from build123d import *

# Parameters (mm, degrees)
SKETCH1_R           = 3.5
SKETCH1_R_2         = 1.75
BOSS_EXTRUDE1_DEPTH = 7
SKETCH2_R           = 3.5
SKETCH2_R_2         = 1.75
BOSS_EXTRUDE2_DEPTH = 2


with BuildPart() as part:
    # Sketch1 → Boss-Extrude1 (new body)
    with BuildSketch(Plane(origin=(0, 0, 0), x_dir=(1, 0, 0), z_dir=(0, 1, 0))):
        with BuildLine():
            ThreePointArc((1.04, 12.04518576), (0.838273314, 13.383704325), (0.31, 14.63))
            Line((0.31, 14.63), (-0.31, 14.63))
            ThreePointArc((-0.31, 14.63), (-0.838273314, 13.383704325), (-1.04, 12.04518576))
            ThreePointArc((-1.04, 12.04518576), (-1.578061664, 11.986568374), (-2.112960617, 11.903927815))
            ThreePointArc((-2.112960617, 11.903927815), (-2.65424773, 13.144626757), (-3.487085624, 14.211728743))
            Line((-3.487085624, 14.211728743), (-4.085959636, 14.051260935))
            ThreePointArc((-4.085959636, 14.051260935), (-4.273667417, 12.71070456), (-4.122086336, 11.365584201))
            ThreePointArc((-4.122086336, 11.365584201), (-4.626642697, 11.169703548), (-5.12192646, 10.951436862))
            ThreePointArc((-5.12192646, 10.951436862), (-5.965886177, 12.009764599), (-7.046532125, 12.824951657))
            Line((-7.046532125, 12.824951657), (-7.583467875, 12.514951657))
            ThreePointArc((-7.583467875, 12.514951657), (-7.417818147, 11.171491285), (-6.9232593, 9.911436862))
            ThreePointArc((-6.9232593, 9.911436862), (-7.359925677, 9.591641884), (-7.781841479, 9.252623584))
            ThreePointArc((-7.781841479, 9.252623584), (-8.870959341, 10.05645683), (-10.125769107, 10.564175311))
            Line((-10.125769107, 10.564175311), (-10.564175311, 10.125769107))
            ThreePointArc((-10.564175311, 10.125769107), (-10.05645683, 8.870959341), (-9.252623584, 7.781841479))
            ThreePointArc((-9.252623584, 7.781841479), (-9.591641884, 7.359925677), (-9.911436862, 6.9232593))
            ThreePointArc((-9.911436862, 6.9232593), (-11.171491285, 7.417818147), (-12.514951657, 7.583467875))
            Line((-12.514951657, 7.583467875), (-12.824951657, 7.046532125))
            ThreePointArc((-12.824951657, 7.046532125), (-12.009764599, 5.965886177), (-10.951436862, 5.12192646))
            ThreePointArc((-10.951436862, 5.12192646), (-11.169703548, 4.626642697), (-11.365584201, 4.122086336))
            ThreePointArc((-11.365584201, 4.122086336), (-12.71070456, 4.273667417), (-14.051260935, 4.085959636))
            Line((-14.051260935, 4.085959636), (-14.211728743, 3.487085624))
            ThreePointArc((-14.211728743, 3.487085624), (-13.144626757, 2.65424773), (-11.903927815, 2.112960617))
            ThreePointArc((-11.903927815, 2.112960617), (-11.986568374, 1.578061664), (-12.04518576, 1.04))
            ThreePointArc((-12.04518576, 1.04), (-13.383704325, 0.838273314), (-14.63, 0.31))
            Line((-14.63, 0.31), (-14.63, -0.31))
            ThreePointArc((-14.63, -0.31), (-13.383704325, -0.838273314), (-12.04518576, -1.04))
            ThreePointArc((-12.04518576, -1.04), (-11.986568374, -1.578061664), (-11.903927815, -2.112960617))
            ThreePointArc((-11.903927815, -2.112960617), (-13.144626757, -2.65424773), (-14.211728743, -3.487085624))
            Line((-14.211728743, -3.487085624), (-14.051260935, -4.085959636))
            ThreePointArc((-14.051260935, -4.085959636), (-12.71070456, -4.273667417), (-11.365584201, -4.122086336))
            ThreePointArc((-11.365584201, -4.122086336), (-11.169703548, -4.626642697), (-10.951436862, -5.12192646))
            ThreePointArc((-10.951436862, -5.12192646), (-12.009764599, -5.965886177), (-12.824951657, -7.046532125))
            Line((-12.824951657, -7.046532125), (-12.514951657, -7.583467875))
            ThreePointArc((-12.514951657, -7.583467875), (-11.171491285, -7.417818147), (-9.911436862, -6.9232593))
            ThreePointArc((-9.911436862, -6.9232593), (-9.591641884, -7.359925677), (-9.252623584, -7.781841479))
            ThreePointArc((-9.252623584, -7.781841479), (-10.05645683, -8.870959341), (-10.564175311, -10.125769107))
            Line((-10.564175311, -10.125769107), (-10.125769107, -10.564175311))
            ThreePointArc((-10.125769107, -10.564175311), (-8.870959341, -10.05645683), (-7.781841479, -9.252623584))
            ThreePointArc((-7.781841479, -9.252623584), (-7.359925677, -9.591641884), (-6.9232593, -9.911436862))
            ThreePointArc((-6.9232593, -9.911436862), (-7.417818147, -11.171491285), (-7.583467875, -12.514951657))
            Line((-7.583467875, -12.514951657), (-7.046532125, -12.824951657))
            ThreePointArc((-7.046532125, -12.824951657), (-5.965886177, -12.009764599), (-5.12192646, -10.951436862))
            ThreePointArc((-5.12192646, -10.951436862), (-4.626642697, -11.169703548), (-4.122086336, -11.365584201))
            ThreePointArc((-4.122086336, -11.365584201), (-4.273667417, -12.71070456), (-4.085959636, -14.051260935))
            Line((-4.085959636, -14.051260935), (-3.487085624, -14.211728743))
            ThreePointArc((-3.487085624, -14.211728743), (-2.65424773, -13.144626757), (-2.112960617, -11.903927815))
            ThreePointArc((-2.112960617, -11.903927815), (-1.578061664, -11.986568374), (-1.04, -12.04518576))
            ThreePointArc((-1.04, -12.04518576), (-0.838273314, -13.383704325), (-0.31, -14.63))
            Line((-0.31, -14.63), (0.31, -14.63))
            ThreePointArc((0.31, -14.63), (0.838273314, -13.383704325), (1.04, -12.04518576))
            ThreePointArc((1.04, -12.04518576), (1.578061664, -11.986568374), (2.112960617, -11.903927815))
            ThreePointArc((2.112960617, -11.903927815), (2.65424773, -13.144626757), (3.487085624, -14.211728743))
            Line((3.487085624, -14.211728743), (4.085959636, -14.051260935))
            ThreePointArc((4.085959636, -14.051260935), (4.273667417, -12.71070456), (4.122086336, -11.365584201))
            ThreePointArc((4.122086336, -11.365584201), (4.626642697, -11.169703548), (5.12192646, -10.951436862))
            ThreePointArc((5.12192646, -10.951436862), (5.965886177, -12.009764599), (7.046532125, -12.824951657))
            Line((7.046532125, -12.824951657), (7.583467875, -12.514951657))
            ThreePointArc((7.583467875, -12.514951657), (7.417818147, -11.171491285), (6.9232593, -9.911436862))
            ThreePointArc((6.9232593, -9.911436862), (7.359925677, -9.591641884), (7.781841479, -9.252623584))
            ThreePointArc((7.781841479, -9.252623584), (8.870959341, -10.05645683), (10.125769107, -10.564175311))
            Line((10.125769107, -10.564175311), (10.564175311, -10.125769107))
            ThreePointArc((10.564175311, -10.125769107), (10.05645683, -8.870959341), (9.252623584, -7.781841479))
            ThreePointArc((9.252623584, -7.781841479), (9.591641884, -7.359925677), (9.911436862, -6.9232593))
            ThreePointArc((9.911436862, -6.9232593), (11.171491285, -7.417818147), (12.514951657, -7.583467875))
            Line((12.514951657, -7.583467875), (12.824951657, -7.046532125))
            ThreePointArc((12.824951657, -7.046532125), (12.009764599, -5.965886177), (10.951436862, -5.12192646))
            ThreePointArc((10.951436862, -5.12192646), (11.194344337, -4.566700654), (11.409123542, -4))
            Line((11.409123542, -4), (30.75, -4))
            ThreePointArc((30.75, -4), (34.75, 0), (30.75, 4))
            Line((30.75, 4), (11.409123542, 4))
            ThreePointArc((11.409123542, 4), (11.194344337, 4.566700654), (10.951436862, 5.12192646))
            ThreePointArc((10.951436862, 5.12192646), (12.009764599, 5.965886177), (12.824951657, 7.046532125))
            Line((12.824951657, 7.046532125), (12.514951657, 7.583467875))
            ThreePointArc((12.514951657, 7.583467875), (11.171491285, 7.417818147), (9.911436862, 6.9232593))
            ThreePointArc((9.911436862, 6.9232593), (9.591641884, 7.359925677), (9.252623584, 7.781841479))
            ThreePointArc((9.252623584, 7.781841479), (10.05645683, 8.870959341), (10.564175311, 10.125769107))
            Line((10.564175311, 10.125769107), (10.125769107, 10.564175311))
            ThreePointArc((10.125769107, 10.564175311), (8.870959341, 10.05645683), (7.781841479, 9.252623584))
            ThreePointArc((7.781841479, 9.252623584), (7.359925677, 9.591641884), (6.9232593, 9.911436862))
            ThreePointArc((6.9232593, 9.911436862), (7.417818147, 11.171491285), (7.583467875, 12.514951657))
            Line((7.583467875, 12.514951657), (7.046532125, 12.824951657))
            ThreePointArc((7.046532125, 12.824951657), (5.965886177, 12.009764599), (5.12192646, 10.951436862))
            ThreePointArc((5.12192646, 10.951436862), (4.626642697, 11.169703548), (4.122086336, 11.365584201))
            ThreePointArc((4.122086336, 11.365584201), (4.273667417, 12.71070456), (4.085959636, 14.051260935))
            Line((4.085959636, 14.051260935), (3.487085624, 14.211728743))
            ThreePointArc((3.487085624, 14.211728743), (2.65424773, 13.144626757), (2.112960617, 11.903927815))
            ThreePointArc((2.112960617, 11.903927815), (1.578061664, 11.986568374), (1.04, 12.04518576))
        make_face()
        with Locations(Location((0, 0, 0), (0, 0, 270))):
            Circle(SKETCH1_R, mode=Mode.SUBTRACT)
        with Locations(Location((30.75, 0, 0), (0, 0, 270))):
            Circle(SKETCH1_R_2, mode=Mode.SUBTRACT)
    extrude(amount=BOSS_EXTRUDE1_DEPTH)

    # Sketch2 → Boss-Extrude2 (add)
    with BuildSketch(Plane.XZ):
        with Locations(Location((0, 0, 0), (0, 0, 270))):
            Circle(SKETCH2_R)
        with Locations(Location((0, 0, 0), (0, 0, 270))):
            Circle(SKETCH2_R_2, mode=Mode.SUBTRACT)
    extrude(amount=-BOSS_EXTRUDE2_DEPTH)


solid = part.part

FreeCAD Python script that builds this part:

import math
import FreeCAD as App
import Part
import Sketcher
Q = App.Units.Quantity

doc = App.newDocument("Part")
body = doc.addObject("PartDesign::Body", "Body")

# Sketch on XZ plane
sketch1 = body.newObject("Sketcher::SketchObject", "Sketch")
sketch1.AttachmentSupport = (doc.getObject("XZ_Plane"), [""])
sketch1.MapMode = "FlatFace"
sketch1.addGeometry([
    Part.ArcOfCircle(Part.Circle(App.Vector(-4.358456, -11.916051, 0), App.Vector(0, 0, 1), 5.4), math.radians(-30.171052), math.radians(-1.370297)),  # 0
    Part.LineSegment(App.Vector(0.31, -14.63, 0), App.Vector(-0.31, -14.63, 0)),  # 1
    Part.ArcOfCircle(Part.Circle(App.Vector(4.358456, -11.916051, 0), App.Vector(0, 0, 1), 5.4), math.radians(-178.629703), math.radians(-149.828948)),  # 2
    Part.ArcOfCircle(Part.Circle(App.Vector(0, 0, 0), App.Vector(0, 0, 1), 12.09), math.radians(-100.065232), math.radians(-94.934768)),  # 3
    Part.ArcOfCircle(Part.Circle(App.Vector(-7.294046, -10.38197, 0), App.Vector(0, 0, 1), 5.4), math.radians(-45.171052), math.radians(-16.370297)),  # 4
    Part.LineSegment(App.Vector(-3.487086, -14.211729, 0), App.Vector(-4.08596, -14.051261, 0)),  # 5
    Part.ArcOfCircle(Part.Circle(App.Vector(1.125844, -12.638072, 0), App.Vector(0, 0, 1), 5.4), math.radians(166.370297), math.radians(195.171052)),  # 6
    Part.ArcOfCircle(Part.Circle(App.Vector(0, 0, 0), App.Vector(0, 0, 1), 12.09), math.radians(-115.065232), math.radians(-109.934768)),  # 7
    Part.ArcOfCircle(Part.Circle(App.Vector(-9.732559, -8.140375, 0), App.Vector(0, 0, 1), 5.4), math.radians(-60.171052), math.radians(-31.370297)),  # 8
    Part.LineSegment(App.Vector(-7.046532, -12.824952, 0), App.Vector(-7.583468, -12.514952, 0)),  # 9
    Part.ArcOfCircle(Part.Circle(App.Vector(-2.183492, -12.49883, 0), App.Vector(0, 0, 1), 5.4), math.radians(151.370297), math.radians(180.171052)),  # 10
    Part.ArcOfCircle(Part.Circle(App.Vector(0, 0, 0), App.Vector(0, 0, 1), 12.09), math.radians(-130.065232), math.radians(-124.934768)),  # 11
    Part.ArcOfCircle(Part.Circle(App.Vector(-11.507814, -5.344027, 0), App.Vector(0, 0, 1), 5.4), math.radians(-75.171052), math.radians(-46.370297)),  # 12
    Part.LineSegment(App.Vector(-10.125769, -10.564175, 0), App.Vector(-10.564175, -10.125769, 0)),  # 13
    Part.ArcOfCircle(Part.Circle(App.Vector(-5.344027, -11.507814, 0), App.Vector(0, 0, 1), 5.4), math.radians(136.370297), math.radians(165.171052)),  # 14
    Part.ArcOfCircle(Part.Circle(App.Vector(0, 0, 0), App.Vector(0, 0, 1), 12.09), math.radians(-145.065232), math.radians(-139.934768)),  # 15
    Part.ArcOfCircle(Part.Circle(App.Vector(-12.49883, -2.183492, 0), App.Vector(0, 0, 1), 5.4), math.radians(-90.171052), math.radians(-61.370297)),  # 16
    Part.LineSegment(App.Vector(-12.514952, -7.583468, 0), App.Vector(-12.824952, -7.046532, 0)),  # 17
    Part.ArcOfCircle(Part.Circle(App.Vector(-8.140375, -9.732559, 0), App.Vector(0, 0, 1), 5.4), math.radians(121.370297), math.radians(150.171052)),  # 18
    Part.ArcOfCircle(Part.Circle(App.Vector(0, 0, 0), App.Vector(0, 0, 1), 12.09), math.radians(-160.065232), math.radians(-154.934768)),  # 19
    Part.ArcOfCircle(Part.Circle(App.Vector(-12.638072, 1.125844, 0), App.Vector(0, 0, 1), 5.4), math.radians(-105.171052), math.radians(-76.370297)),  # 20
    Part.LineSegment(App.Vector(-14.051261, -4.08596, 0), App.Vector(-14.211729, -3.487086, 0)),  # 21
    Part.ArcOfCircle(Part.Circle(App.Vector(-10.38197, -7.294046, 0), App.Vector(0, 0, 1), 5.4), math.radians(106.370297), math.radians(135.171052)),  # 22
    Part.ArcOfCircle(Part.Circle(App.Vector(0, 0, 0), App.Vector(0, 0, 1), 12.09), math.radians(-175.065232), math.radians(-169.934768)),  # 23
    Part.ArcOfCircle(Part.Circle(App.Vector(-11.916051, 4.358456, 0), App.Vector(0, 0, 1), 5.4), math.radians(-120.171052), math.radians(-91.370297)),  # 24
    Part.LineSegment(App.Vector(-14.63, -0.31, 0), App.Vector(-14.63, 0.31, 0)),  # 25
    Part.ArcOfCircle(Part.Circle(App.Vector(-11.916051, -4.358456, 0), App.Vector(0, 0, 1), 5.4), math.radians(91.370297), math.radians(120.171052)),  # 26
    Part.ArcOfCircle(Part.Circle(App.Vector(0, 0, 0), App.Vector(0, 0, 1), 12.09), math.radians(169.934768), math.radians(175.065232)),  # 27
    Part.ArcOfCircle(Part.Circle(App.Vector(-10.38197, 7.294046, 0), App.Vector(0, 0, 1), 5.4), math.radians(-135.171052), math.radians(-106.370297)),  # 28
    Part.LineSegment(App.Vector(-14.211729, 3.487086, 0), App.Vector(-14.051261, 4.08596, 0)),  # 29
    Part.ArcOfCircle(Part.Circle(App.Vector(-12.638072, -1.125844, 0), App.Vector(0, 0, 1), 5.4), math.radians(76.370297), math.radians(105.171052)),  # 30
    Part.ArcOfCircle(Part.Circle(App.Vector(0, 0, 0), App.Vector(0, 0, 1), 12.09), math.radians(154.934768), math.radians(160.065232)),  # 31
    Part.ArcOfCircle(Part.Circle(App.Vector(-8.140375, 9.732559, 0), App.Vector(0, 0, 1), 5.4), math.radians(-150.171052), math.radians(-121.370297)),  # 32
    Part.LineSegment(App.Vector(-12.824952, 7.046532, 0), App.Vector(-12.514952, 7.583468, 0)),  # 33
    Part.ArcOfCircle(Part.Circle(App.Vector(-12.49883, 2.183492, 0), App.Vector(0, 0, 1), 5.4), math.radians(61.370297), math.radians(90.171052)),  # 34
    Part.ArcOfCircle(Part.Circle(App.Vector(0, 0, 0), App.Vector(0, 0, 1), 12.09), math.radians(139.934768), math.radians(145.065232)),  # 35
    Part.ArcOfCircle(Part.Circle(App.Vector(-5.344027, 11.507814, 0), App.Vector(0, 0, 1), 5.4), math.radians(-165.171052), math.radians(-136.370297)),  # 36
    Part.LineSegment(App.Vector(-10.564175, 10.125769, 0), App.Vector(-10.125769, 10.564175, 0)),  # 37
    Part.ArcOfCircle(Part.Circle(App.Vector(-11.507814, 5.344027, 0), App.Vector(0, 0, 1), 5.4), math.radians(46.370297), math.radians(75.171052)),  # 38
    Part.ArcOfCircle(Part.Circle(App.Vector(0, 0, 0), App.Vector(0, 0, 1), 12.09), math.radians(124.934768), math.radians(130.065232)),  # 39
    Part.ArcOfCircle(Part.Circle(App.Vector(-2.183492, 12.49883, 0), App.Vector(0, 0, 1), 5.4), math.radians(179.828948), math.radians(208.629703)),  # 40
    Part.LineSegment(App.Vector(-7.583468, 12.514952, 0), App.Vector(-7.046532, 12.824952, 0)),  # 41
    Part.ArcOfCircle(Part.Circle(App.Vector(-9.732559, 8.140375, 0), App.Vector(0, 0, 1), 5.4), math.radians(31.370297), math.radians(60.171052)),  # 42
    Part.ArcOfCircle(Part.Circle(App.Vector(0, 0, 0), App.Vector(0, 0, 1), 12.09), math.radians(109.934768), math.radians(115.065232)),  # 43
    Part.ArcOfCircle(Part.Circle(App.Vector(1.125844, 12.638072, 0), App.Vector(0, 0, 1), 5.4), math.radians(164.828948), math.radians(193.629703)),  # 44
    Part.LineSegment(App.Vector(-4.08596, 14.051261, 0), App.Vector(-3.487086, 14.211729, 0)),  # 45
    Part.ArcOfCircle(Part.Circle(App.Vector(-7.294046, 10.38197, 0), App.Vector(0, 0, 1), 5.4), math.radians(16.370297), math.radians(45.171052)),  # 46
    Part.ArcOfCircle(Part.Circle(App.Vector(0, 0, 0), App.Vector(0, 0, 1), 12.09), math.radians(94.934768), math.radians(100.065232)),  # 47
    Part.ArcOfCircle(Part.Circle(App.Vector(4.358456, 11.916051, 0), App.Vector(0, 0, 1), 5.4), math.radians(149.828948), math.radians(178.629703)),  # 48
    Part.LineSegment(App.Vector(-0.31, 14.63, 0), App.Vector(0.31, 14.63, 0)),  # 49
    Part.ArcOfCircle(Part.Circle(App.Vector(-4.358456, 11.916051, 0), App.Vector(0, 0, 1), 5.4), math.radians(1.370297), math.radians(30.171052)),  # 50
    Part.ArcOfCircle(Part.Circle(App.Vector(0, 0, 0), App.Vector(0, 0, 1), 12.09), math.radians(79.934768), math.radians(85.065232)),  # 51
    Part.ArcOfCircle(Part.Circle(App.Vector(7.294046, 10.38197, 0), App.Vector(0, 0, 1), 5.4), math.radians(134.828948), math.radians(163.629703)),  # 52
    Part.LineSegment(App.Vector(3.487086, 14.211729, 0), App.Vector(4.08596, 14.051261, 0)),  # 53
    Part.ArcOfCircle(Part.Circle(App.Vector(-1.125844, 12.638072, 0), App.Vector(0, 0, 1), 5.4), math.radians(-13.629703), math.radians(15.171052)),  # 54
    Part.ArcOfCircle(Part.Circle(App.Vector(0, 0, 0), App.Vector(0, 0, 1), 12.09), math.radians(64.934768), math.radians(70.065232)),  # 55
    Part.ArcOfCircle(Part.Circle(App.Vector(9.732559, 8.140375, 0), App.Vector(0, 0, 1), 5.4), math.radians(119.828948), math.radians(148.629703)),  # 56
    Part.LineSegment(App.Vector(7.046532, 12.824952, 0), App.Vector(7.583468, 12.514952, 0)),  # 57
    Part.ArcOfCircle(Part.Circle(App.Vector(2.183492, 12.49883, 0), App.Vector(0, 0, 1), 5.4), math.radians(-28.629703), math.radians(0.171052)),  # 58
    Part.ArcOfCircle(Part.Circle(App.Vector(0, 0, 0), App.Vector(0, 0, 1), 12.09), math.radians(49.934768), math.radians(55.065232)),  # 59
    Part.ArcOfCircle(Part.Circle(App.Vector(11.507814, 5.344027, 0), App.Vector(0, 0, 1), 5.4), math.radians(104.828948), math.radians(133.629703)),  # 60
    Part.LineSegment(App.Vector(10.125769, 10.564175, 0), App.Vector(10.564175, 10.125769, 0)),  # 61
    Part.ArcOfCircle(Part.Circle(App.Vector(5.344027, 11.507814, 0), App.Vector(0, 0, 1), 5.4), math.radians(-43.629703), math.radians(-14.828948)),  # 62
    Part.ArcOfCircle(Part.Circle(App.Vector(0, 0, 0), App.Vector(0, 0, 1), 12.09), math.radians(34.934768), math.radians(40.065232)),  # 63
    Part.ArcOfCircle(Part.Circle(App.Vector(12.49883, 2.183492, 0), App.Vector(0, 0, 1), 5.4), math.radians(89.828948), math.radians(118.629703)),  # 64
    Part.LineSegment(App.Vector(12.514952, 7.583468, 0), App.Vector(12.824952, 7.046532, 0)),  # 65
    Part.ArcOfCircle(Part.Circle(App.Vector(8.140375, 9.732559, 0), App.Vector(0, 0, 1), 5.4), math.radians(-58.629703), math.radians(-29.828948)),  # 66
    Part.ArcOfCircle(Part.Circle(App.Vector(0, 0, 0), App.Vector(0, 0, 1), 12.09), math.radians(19.320493), math.radians(25.065232)),  # 67
    Part.LineSegment(App.Vector(11.409124, 4, 0), App.Vector(30.75, 4, 0)),  # 68
    Part.ArcOfCircle(Part.Circle(App.Vector(30.75, 0, 0), App.Vector(0, 0, 1), 4), math.radians(-90), math.radians(90)),  # 69
    Part.LineSegment(App.Vector(30.75, -4, 0), App.Vector(11.409124, -4, 0)),  # 70
    Part.ArcOfCircle(Part.Circle(App.Vector(0, 0, 0), App.Vector(0, 0, 1), 12.09), math.radians(-25.065232), math.radians(-19.320493)),  # 71
    Part.ArcOfCircle(Part.Circle(App.Vector(8.140375, -9.732559, 0), App.Vector(0, 0, 1), 5.4), math.radians(29.828948), math.radians(58.629703)),  # 72
    Part.LineSegment(App.Vector(12.824952, -7.046532, 0), App.Vector(12.514952, -7.583468, 0)),  # 73
    Part.ArcOfCircle(Part.Circle(App.Vector(12.49883, -2.183492, 0), App.Vector(0, 0, 1), 5.4), math.radians(-118.629703), math.radians(-89.828948)),  # 74
    Part.ArcOfCircle(Part.Circle(App.Vector(0, 0, 0), App.Vector(0, 0, 1), 12.09), math.radians(-40.065232), math.radians(-34.934768)),  # 75
    Part.ArcOfCircle(Part.Circle(App.Vector(5.344027, -11.507814, 0), App.Vector(0, 0, 1), 5.4), math.radians(14.828948), math.radians(43.629703)),  # 76
    Part.LineSegment(App.Vector(10.564175, -10.125769, 0), App.Vector(10.125769, -10.564175, 0)),  # 77
    Part.ArcOfCircle(Part.Circle(App.Vector(11.507814, -5.344027, 0), App.Vector(0, 0, 1), 5.4), math.radians(-133.629703), math.radians(-104.828948)),  # 78
    Part.ArcOfCircle(Part.Circle(App.Vector(0, 0, 0), App.Vector(0, 0, 1), 12.09), math.radians(-55.065232), math.radians(-49.934768)),  # 79
    Part.ArcOfCircle(Part.Circle(App.Vector(2.183492, -12.49883, 0), App.Vector(0, 0, 1), 5.4), math.radians(-0.171052), math.radians(28.629703)),  # 80
    Part.LineSegment(App.Vector(7.583468, -12.514952, 0), App.Vector(7.046532, -12.824952, 0)),  # 81
    Part.ArcOfCircle(Part.Circle(App.Vector(9.732559, -8.140375, 0), App.Vector(0, 0, 1), 5.4), math.radians(-148.629703), math.radians(-119.828948)),  # 82
    Part.ArcOfCircle(Part.Circle(App.Vector(0, 0, 0), App.Vector(0, 0, 1), 12.09), math.radians(-70.065232), math.radians(-64.934768)),  # 83
    Part.ArcOfCircle(Part.Circle(App.Vector(-1.125844, -12.638072, 0), App.Vector(0, 0, 1), 5.4), math.radians(-15.171052), math.radians(13.629703)),  # 84
    Part.LineSegment(App.Vector(4.08596, -14.051261, 0), App.Vector(3.487086, -14.211729, 0)),  # 85
    Part.ArcOfCircle(Part.Circle(App.Vector(7.294046, -10.38197, 0), App.Vector(0, 0, 1), 5.4), math.radians(-163.629703), math.radians(-134.828948)),  # 86
    Part.ArcOfCircle(Part.Circle(App.Vector(0, 0, 0), App.Vector(0, 0, 1), 12.09), math.radians(-85.065232), math.radians(-79.934768)),  # 87
    Part.Circle(App.Vector(0, 0, 0), App.Vector(0, 0, 1), 3.5),  # 88
    Part.Circle(App.Vector(30.75, 0, 0), App.Vector(0, 0, 1), 1.75),  # 89
], False)
sketch1.addConstraint([
    Sketcher.Constraint("Coincident", 0, 1, 1, 1),
    Sketcher.Constraint("Coincident", 1, 2, 2, 2),
    Sketcher.Constraint("Coincident", 2, 1, 3, 2),
    Sketcher.Constraint("Coincident", 3, 1, 4, 2),
    Sketcher.Constraint("Coincident", 4, 1, 5, 1),
    Sketcher.Constraint("Coincident", 5, 2, 6, 2),
    Sketcher.Constraint("Coincident", 6, 1, 7, 2),
    Sketcher.Constraint("Coincident", 7, 1, 8, 2),
    Sketcher.Constraint("Coincident", 8, 1, 9, 1),
    Sketcher.Constraint("Coincident", 9, 2, 10, 2),
    Sketcher.Constraint("Coincident", 10, 1, 11, 2),
    Sketcher.Constraint("Coincident", 11, 1, 12, 2),
    Sketcher.Constraint("Coincident", 12, 1, 13, 1),
    Sketcher.Constraint("Coincident", 13, 2, 14, 2),
    Sketcher.Constraint("Coincident", 14, 1, 15, 2),
    Sketcher.Constraint("Coincident", 15, 1, 16, 2),
    Sketcher.Constraint("Coincident", 16, 1, 17, 1),
    Sketcher.Constraint("Coincident", 17, 2, 18, 2),
    Sketcher.Constraint("Coincident", 18, 1, 19, 2),
    Sketcher.Constraint("Coincident", 19, 1, 20, 2),
    Sketcher.Constraint("Coincident", 20, 1, 21, 1),
    Sketcher.Constraint("Coincident", 21, 2, 22, 2),
    Sketcher.Constraint("Coincident", 22, 1, 23, 2),
    Sketcher.Constraint("Coincident", 23, 1, 24, 2),
    Sketcher.Constraint("Coincident", 24, 1, 25, 1),
    Sketcher.Constraint("Coincident", 25, 2, 26, 2),
    Sketcher.Constraint("Coincident", 26, 1, 27, 2),
    Sketcher.Constraint("Coincident", 27, 1, 28, 2),
    Sketcher.Constraint("Coincident", 28, 1, 29, 1),
    Sketcher.Constraint("Coincident", 29, 2, 30, 2),
    Sketcher.Constraint("Coincident", 30, 1, 31, 2),
    Sketcher.Constraint("Coincident", 31, 1, 32, 2),
    Sketcher.Constraint("Coincident", 32, 1, 33, 1),
    Sketcher.Constraint("Coincident", 33, 2, 34, 2),
    Sketcher.Constraint("Coincident", 34, 1, 35, 2),
    Sketcher.Constraint("Coincident", 35, 1, 36, 2),
    Sketcher.Constraint("Coincident", 36, 1, 37, 1),
    Sketcher.Constraint("Coincident", 37, 2, 38, 2),
    Sketcher.Constraint("Coincident", 38, 1, 39, 2),
    Sketcher.Constraint("Coincident", 39, 1, 40, 2),
    Sketcher.Constraint("Coincident", 40, 1, 41, 1),
    Sketcher.Constraint("Coincident", 41, 2, 42, 2),
    Sketcher.Constraint("Coincident", 42, 1, 43, 2),
    Sketcher.Constraint("Coincident", 43, 1, 44, 2),
    Sketcher.Constraint("Coincident", 44, 1, 45, 1),
    Sketcher.Constraint("Coincident", 45, 2, 46, 2),
    Sketcher.Constraint("Coincident", 46, 1, 47, 2),
    Sketcher.Constraint("Coincident", 47, 1, 48, 2),
    Sketcher.Constraint("Coincident", 48, 1, 49, 1),
    Sketcher.Constraint("Coincident", 49, 2, 50, 2),
    Sketcher.Constraint("Coincident", 50, 1, 51, 2),
    Sketcher.Constraint("Coincident", 51, 1, 52, 2),
    Sketcher.Constraint("Coincident", 52, 1, 53, 1),
    Sketcher.Constraint("Coincident", 53, 2, 54, 2),
    Sketcher.Constraint("Coincident", 54, 1, 55, 2),
    Sketcher.Constraint("Coincident", 55, 1, 56, 2),
    Sketcher.Constraint("Coincident", 56, 1, 57, 1),
    Sketcher.Constraint("Coincident", 57, 2, 58, 2),
    Sketcher.Constraint("Coincident", 58, 1, 59, 2),
    Sketcher.Constraint("Coincident", 59, 1, 60, 2),
    Sketcher.Constraint("Coincident", 60, 1, 61, 1),
    Sketcher.Constraint("Coincident", 61, 2, 62, 2),
    Sketcher.Constraint("Coincident", 62, 1, 63, 2),
    Sketcher.Constraint("Coincident", 63, 1, 64, 2),
    Sketcher.Constraint("Coincident", 64, 1, 65, 1),
    Sketcher.Constraint("Coincident", 65, 2, 66, 2),
    Sketcher.Constraint("Coincident", 66, 1, 67, 2),
    Sketcher.Constraint("Coincident", 67, 1, 68, 1),
    Sketcher.Constraint("Tangent", 68, 2, 69, 2),
    Sketcher.Constraint("Tangent", 69, 1, 70, 1),
    Sketcher.Constraint("Coincident", 70, 2, 71, 2),
    Sketcher.Constraint("Coincident", 71, 1, 72, 2),
    Sketcher.Constraint("Coincident", 72, 1, 73, 1),
    Sketcher.Constraint("Coincident", 73, 2, 74, 2),
    Sketcher.Constraint("Coincident", 74, 1, 75, 2),
    Sketcher.Constraint("Coincident", 75, 1, 76, 2),
    Sketcher.Constraint("Coincident", 76, 1, 77, 1),
    Sketcher.Constraint("Coincident", 77, 2, 78, 2),
    Sketcher.Constraint("Coincident", 78, 1, 79, 2),
    Sketcher.Constraint("Coincident", 79, 1, 80, 2),
    Sketcher.Constraint("Coincident", 80, 1, 81, 1),
    Sketcher.Constraint("Coincident", 81, 2, 82, 2),
    Sketcher.Constraint("Coincident", 82, 1, 83, 2),
    Sketcher.Constraint("Coincident", 83, 1, 84, 2),
    Sketcher.Constraint("Coincident", 84, 1, 85, 1),
    Sketcher.Constraint("Coincident", 85, 2, 86, 2),
    Sketcher.Constraint("Coincident", 86, 1, 87, 2),
    Sketcher.Constraint("Coincident", 87, 1, 0, 2),
    Sketcher.Constraint("Horizontal", 1),
    Sketcher.Constraint("Vertical", 25),
    Sketcher.Constraint("Horizontal", 49),
    Sketcher.Constraint("Horizontal", 68),
    Sketcher.Constraint("Horizontal", 70),
    Sketcher.Constraint("Coincident", 3, 3, -1, 1),
    Sketcher.Constraint("Coincident", 7, 3, -1, 1),
    Sketcher.Constraint("Coincident", 11, 3, -1, 1),
    Sketcher.Constraint("Coincident", 15, 3, -1, 1),
    Sketcher.Constraint("Coincident", 19, 3, -1, 1),
    Sketcher.Constraint("Coincident", 23, 3, -1, 1),
    Sketcher.Constraint("Coincident", 27, 3, -1, 1),
    Sketcher.Constraint("Coincident", 31, 3, -1, 1),
    Sketcher.Constraint("Coincident", 35, 3, -1, 1),
    Sketcher.Constraint("Coincident", 39, 3, -1, 1),
    Sketcher.Constraint("Coincident", 43, 3, -1, 1),
    Sketcher.Constraint("Coincident", 47, 3, -1, 1),
    Sketcher.Constraint("Coincident", 51, 3, -1, 1),
    Sketcher.Constraint("Coincident", 55, 3, -1, 1),
    Sketcher.Constraint("Coincident", 59, 3, -1, 1),
    Sketcher.Constraint("Coincident", 63, 3, -1, 1),
    Sketcher.Constraint("Coincident", 67, 3, -1, 1),
    Sketcher.Constraint("Coincident", 71, 3, -1, 1),
    Sketcher.Constraint("Coincident", 75, 3, -1, 1),
    Sketcher.Constraint("Coincident", 79, 3, -1, 1),
    Sketcher.Constraint("Coincident", 83, 3, -1, 1),
    Sketcher.Constraint("Coincident", 87, 3, -1, 1),
    Sketcher.Constraint("Coincident", 88, 3, -1, 1),
    Sketcher.Constraint("Coincident", 89, 3, 69, 3),
    Sketcher.Constraint("Equal", 0, 2),
    Sketcher.Constraint("Equal", 2, 4),
    Sketcher.Constraint("Equal", 4, 6),
    Sketcher.Constraint("Equal", 3, 7),
    Sketcher.Constraint("Equal", 6, 8),
    Sketcher.Constraint("Equal", 8, 10),
    Sketcher.Constraint("Equal", 7, 11),
    Sketcher.Constraint("Equal", 10, 12),
    Sketcher.Constraint("Equal", 12, 14),
    Sketcher.Constraint("Equal", 11, 15),
    Sketcher.Constraint("Equal", 14, 16),
    Sketcher.Constraint("Equal", 16, 18),
    Sketcher.Constraint("Equal", 15, 19),
    Sketcher.Constraint("Equal", 18, 20),
    Sketcher.Constraint("Equal", 20, 22),
    Sketcher.Constraint("Equal", 19, 23),
    Sketcher.Constraint("Equal", 22, 24),
    Sketcher.Constraint("Equal", 24, 26),
    Sketcher.Constraint("Equal", 23, 27),
    Sketcher.Constraint("Equal", 26, 28),
    Sketcher.Constraint("Equal", 28, 30),
    Sketcher.Constraint("Equal", 27, 31),
    Sketcher.Constraint("Equal", 30, 32),
    Sketcher.Constraint("Equal", 32, 34),
    Sketcher.Constraint("Equal", 31, 35),
    Sketcher.Constraint("Equal", 34, 36),
    Sketcher.Constraint("Equal", 36, 38),
    Sketcher.Constraint("Equal", 35, 39),
    Sketcher.Constraint("Equal", 38, 40),
    Sketcher.Constraint("Equal", 40, 42),
    Sketcher.Constraint("Equal", 39, 43),
    Sketcher.Constraint("Equal", 42, 44),
    Sketcher.Constraint("Equal", 44, 46),
    Sketcher.Constraint("Equal", 43, 47),
    Sketcher.Constraint("Equal", 46, 48),
    Sketcher.Constraint("Equal", 48, 50),
    Sketcher.Constraint("Equal", 47, 51),
    Sketcher.Constraint("Equal", 50, 52),
    Sketcher.Constraint("Equal", 52, 54),
    Sketcher.Constraint("Equal", 51, 55),
    Sketcher.Constraint("Equal", 54, 56),
    Sketcher.Constraint("Equal", 56, 58),
    Sketcher.Constraint("Equal", 55, 59),
    Sketcher.Constraint("Equal", 58, 60),
    Sketcher.Constraint("Equal", 60, 62),
    Sketcher.Constraint("Equal", 59, 63),
    Sketcher.Constraint("Equal", 62, 64),
    Sketcher.Constraint("Equal", 64, 66),
    Sketcher.Constraint("Equal", 63, 67),
    Sketcher.Constraint("Equal", 67, 71),
    Sketcher.Constraint("Equal", 66, 72),
    Sketcher.Constraint("Equal", 72, 74),
    Sketcher.Constraint("Equal", 71, 75),
    Sketcher.Constraint("Equal", 74, 76),
    Sketcher.Constraint("Equal", 76, 78),
    Sketcher.Constraint("Equal", 75, 79),
    Sketcher.Constraint("Equal", 78, 80),
    Sketcher.Constraint("Equal", 80, 82),
    Sketcher.Constraint("Equal", 79, 83),
    Sketcher.Constraint("Equal", 82, 84),
    Sketcher.Constraint("Equal", 84, 86),
    Sketcher.Constraint("Equal", 83, 87),
    Sketcher.Constraint("Symmetric", 0, 3, 48, 3, -1, 1),
    Sketcher.Constraint("Symmetric", 2, 3, 50, 3, -1, 1),
    Sketcher.Constraint("Symmetric", 4, 3, 52, 3, -1, 1),
    Sketcher.Constraint("Symmetric", 6, 3, 54, 3, -1, 1),
    Sketcher.Constraint("Symmetric", 8, 3, 56, 3, -1, 1),
    Sketcher.Constraint("Symmetric", 10, 3, 58, 3, -1, 1),
    Sketcher.Constraint("Symmetric", 12, 3, 60, 3, -1, 1),
    Sketcher.Constraint("Symmetric", 14, 3, 62, 3, -1, 1),
    Sketcher.Constraint("Symmetric", 16, 3, 64, 3, -1, 1),
    Sketcher.Constraint("Symmetric", 18, 3, 66, 3, -1, 1),
    Sketcher.Constraint("Symmetric", 32, 3, 72, 3, -1, 1),
    Sketcher.Constraint("Symmetric", 34, 3, 74, 3, -1, 1),
    Sketcher.Constraint("Symmetric", 36, 3, 76, 3, -1, 1),
    Sketcher.Constraint("Symmetric", 38, 3, 78, 3, -1, 1),
    Sketcher.Constraint("Symmetric", 40, 3, 80, 3, -1, 1),
    Sketcher.Constraint("Symmetric", 42, 3, 82, 3, -1, 1),
    Sketcher.Constraint("Symmetric", 44, 3, 84, 3, -1, 1),
    Sketcher.Constraint("Symmetric", 46, 3, 86, 3, -1, 1),
    Sketcher.Constraint("Symmetric", 0, 3, 2, 3, -2),
    Sketcher.Constraint("Symmetric", 46, 3, 52, 3, -2),
    Sketcher.Constraint("Symmetric", 44, 3, 54, 3, -2),
    Sketcher.Constraint("Symmetric", 42, 3, 56, 3, -2),
    Sketcher.Constraint("Symmetric", 40, 3, 58, 3, -2),
    Sketcher.Constraint("Symmetric", 38, 3, 60, 3, -2),
    Sketcher.Constraint("Symmetric", 36, 3, 62, 3, -2),
    Sketcher.Constraint("Symmetric", 34, 3, 64, 3, -2),
    Sketcher.Constraint("Symmetric", 32, 3, 66, 3, -2),
    Sketcher.Constraint("Symmetric", 24, 3, 26, 3, -1),
    Sketcher.Constraint("Symmetric", 22, 3, 28, 3, -1),
    Sketcher.Constraint("Symmetric", 20, 3, 30, 3, -1),
    Sketcher.Constraint("PointOnObject", 69, 3, -1),
    Sketcher.Constraint("Perpendicular", 5, 29),
    Sketcher.Constraint("Perpendicular", 9, 33),
    Sketcher.Constraint("Perpendicular", 13, 37),
    Sketcher.Constraint("Perpendicular", 17, 41),
    Sketcher.Constraint("Perpendicular", 21, 45),
    Sketcher.Constraint("Perpendicular", 29, 53),
    Sketcher.Constraint("Perpendicular", 33, 57),
    Sketcher.Constraint("Perpendicular", 37, 61),
    Sketcher.Constraint("Perpendicular", 41, 65),
    Sketcher.Constraint("Perpendicular", 57, 73),
    Sketcher.Constraint("Perpendicular", 61, 77),
    Sketcher.Constraint("Perpendicular", 65, 81),
    Sketcher.Constraint("Parallel", 45, 85),
    Sketcher.Constraint("Horizontal", 45, 2, 52, 1),
    Sketcher.Constraint("Horizontal", 44, 1, 53, 2),
    Sketcher.Constraint("Horizontal", 41, 2, 56, 1),
    Sketcher.Constraint("Horizontal", 40, 1, 57, 2),
    Sketcher.Constraint("Horizontal", 37, 2, 60, 1),
    Sketcher.Constraint("Horizontal", 36, 1, 61, 2),
    Sketcher.Constraint("Horizontal", 32, 1, 65, 2),
    Sketcher.Constraint("Horizontal", 17, 2, 72, 1),
    Sketcher.Constraint("Horizontal", 13, 2, 76, 1),
    Sketcher.Constraint("Horizontal", 9, 2, 80, 1),
    Sketcher.Constraint("Horizontal", 5, 2, 84, 1),
    Sketcher.Constraint("Vertical", 21, 2, 28, 1),
    Sketcher.Constraint("Vertical", 17, 2, 32, 1),
    Sketcher.Constraint("Vertical", 13, 2, 36, 1),
    Sketcher.Constraint("Vertical", 8, 1, 41, 2),
    Sketcher.Constraint("Vertical", 5, 2, 44, 1),
    Sketcher.Constraint("Vertical", 1, 2, 48, 1),
    Sketcher.Constraint("Equal", 49, 25),
    Sketcher.Constraint("Equal", 5, 9),
    Sketcher.Constraint("Equal", 9, 13),
    Sketcher.Constraint("Equal", 13, 17),
    Sketcher.Constraint("Equal", 17, 21),
    Sketcher.Constraint("Diameter", 88, 7.0),
    Sketcher.Constraint("Radius", 69, 4.0),
    Sketcher.Constraint("Diameter", 89, 3.5),
    Sketcher.Constraint("Radius", 0, 5.4),
    Sketcher.Constraint("Angle", 5, Q("165 deg")),
    Sketcher.Constraint("Angle", 9, Q("150 deg")),
    Sketcher.Constraint("Radius", 3, 12.09),
    Sketcher.Constraint("DistanceX", 1, 2, 1, 1, 0.62),
    Sketcher.Constraint("Distance", 5, 0.62),
    Sketcher.Constraint("DistanceX", -1, 1, 69, 3, 30.75),
    Sketcher.Constraint("DistanceY", 0, 1, -1, 1, 14.63),
    Sketcher.Constraint("DistanceX", 2, 1, -1, 1, 1.04),
    Sketcher.Constraint("DistanceY", 23, 1, -1, 1, 1.04),
    Sketcher.Constraint("DistanceX", 24, 1, -1, 1, 14.63),
    Sketcher.Constraint("DistanceY", 4, 3, -1, 1, 10.38197),
    Sketcher.Constraint("DistanceX", 8, 3, -1, 1, 9.732559),
    Sketcher.Constraint("DistanceX", 10, 3, -1, 1, 2.183492),
    Sketcher.Constraint("DistanceY", 10, 3, -1, 1, 12.49883),
    Sketcher.Constraint("DistanceX", 16, 3, -1, 1, 12.49883),
    Sketcher.Constraint("DistanceY", 16, 3, -1, 1, 2.183492),
    Sketcher.Constraint("DistanceY", 18, 3, -1, 1, 9.732559),
    Sketcher.Constraint("DistanceX", 22, 3, -1, 1, 10.38197),
    Sketcher.Constraint("DistanceX", 3, 1, -1, 1, 2.112961),
    Sketcher.Constraint("DistanceY", 4, 1, -1, 1, 14.211729),
    Sketcher.Constraint("DistanceY", 8, 1, -1, 1, 12.824952),
    Sketcher.Constraint("DistanceX", 11, 1, -1, 1, 7.781841),
    Sketcher.Constraint("DistanceX", 12, 1, -1, 1, 10.125769),
    Sketcher.Constraint("DistanceY", 13, 2, -1, 1, 10.125769),
    Sketcher.Constraint("DistanceY", 14, 1, -1, 1, 7.781841),
    Sketcher.Constraint("DistanceX", 16, 1, -1, 1, 12.514952),
    Sketcher.Constraint("DistanceX", 20, 1, -1, 1, 14.051261),
    Sketcher.Constraint("DistanceY", 20, 1, -1, 1, 4.08596),
    Sketcher.Constraint("DistanceX", -1, 1, 6, 3, 1.125844),
    Sketcher.Constraint("DistanceX", 20, 3, -1, 1, 12.638072),
])
pad1 = body.newObject("PartDesign::Pad", "Pad")
pad1.Profile = sketch1
pad1.Length = 7
pad1.Reversed = True

# Sketch on XZ plane
sketch2 = body.newObject("Sketcher::SketchObject", "Sketch001")
sketch2.AttachmentSupport = (doc.getObject("XZ_Plane"), [""])
sketch2.MapMode = "FlatFace"
sketch2.addGeometry([
    Part.Circle(App.Vector(0, 0, 0), App.Vector(0, 0, 1), 3.5),
    Part.Circle(App.Vector(0, 0, 0), App.Vector(0, 0, 1), 1.75),
], False)
sketch2.addConstraint([
    Sketcher.Constraint("Coincident", 0, 3, -1, 1),
    Sketcher.Constraint("Coincident", 1, 3, -1, 1),
    Sketcher.Constraint("Diameter", 0, 7.0),
    Sketcher.Constraint("Diameter", 1, 3.5),
])
pad2 = body.newObject("PartDesign::Pad", "Pad001")
pad2.Profile = sketch2
pad2.Length = 2
pad2.Reversed = True

doc.recompute()
